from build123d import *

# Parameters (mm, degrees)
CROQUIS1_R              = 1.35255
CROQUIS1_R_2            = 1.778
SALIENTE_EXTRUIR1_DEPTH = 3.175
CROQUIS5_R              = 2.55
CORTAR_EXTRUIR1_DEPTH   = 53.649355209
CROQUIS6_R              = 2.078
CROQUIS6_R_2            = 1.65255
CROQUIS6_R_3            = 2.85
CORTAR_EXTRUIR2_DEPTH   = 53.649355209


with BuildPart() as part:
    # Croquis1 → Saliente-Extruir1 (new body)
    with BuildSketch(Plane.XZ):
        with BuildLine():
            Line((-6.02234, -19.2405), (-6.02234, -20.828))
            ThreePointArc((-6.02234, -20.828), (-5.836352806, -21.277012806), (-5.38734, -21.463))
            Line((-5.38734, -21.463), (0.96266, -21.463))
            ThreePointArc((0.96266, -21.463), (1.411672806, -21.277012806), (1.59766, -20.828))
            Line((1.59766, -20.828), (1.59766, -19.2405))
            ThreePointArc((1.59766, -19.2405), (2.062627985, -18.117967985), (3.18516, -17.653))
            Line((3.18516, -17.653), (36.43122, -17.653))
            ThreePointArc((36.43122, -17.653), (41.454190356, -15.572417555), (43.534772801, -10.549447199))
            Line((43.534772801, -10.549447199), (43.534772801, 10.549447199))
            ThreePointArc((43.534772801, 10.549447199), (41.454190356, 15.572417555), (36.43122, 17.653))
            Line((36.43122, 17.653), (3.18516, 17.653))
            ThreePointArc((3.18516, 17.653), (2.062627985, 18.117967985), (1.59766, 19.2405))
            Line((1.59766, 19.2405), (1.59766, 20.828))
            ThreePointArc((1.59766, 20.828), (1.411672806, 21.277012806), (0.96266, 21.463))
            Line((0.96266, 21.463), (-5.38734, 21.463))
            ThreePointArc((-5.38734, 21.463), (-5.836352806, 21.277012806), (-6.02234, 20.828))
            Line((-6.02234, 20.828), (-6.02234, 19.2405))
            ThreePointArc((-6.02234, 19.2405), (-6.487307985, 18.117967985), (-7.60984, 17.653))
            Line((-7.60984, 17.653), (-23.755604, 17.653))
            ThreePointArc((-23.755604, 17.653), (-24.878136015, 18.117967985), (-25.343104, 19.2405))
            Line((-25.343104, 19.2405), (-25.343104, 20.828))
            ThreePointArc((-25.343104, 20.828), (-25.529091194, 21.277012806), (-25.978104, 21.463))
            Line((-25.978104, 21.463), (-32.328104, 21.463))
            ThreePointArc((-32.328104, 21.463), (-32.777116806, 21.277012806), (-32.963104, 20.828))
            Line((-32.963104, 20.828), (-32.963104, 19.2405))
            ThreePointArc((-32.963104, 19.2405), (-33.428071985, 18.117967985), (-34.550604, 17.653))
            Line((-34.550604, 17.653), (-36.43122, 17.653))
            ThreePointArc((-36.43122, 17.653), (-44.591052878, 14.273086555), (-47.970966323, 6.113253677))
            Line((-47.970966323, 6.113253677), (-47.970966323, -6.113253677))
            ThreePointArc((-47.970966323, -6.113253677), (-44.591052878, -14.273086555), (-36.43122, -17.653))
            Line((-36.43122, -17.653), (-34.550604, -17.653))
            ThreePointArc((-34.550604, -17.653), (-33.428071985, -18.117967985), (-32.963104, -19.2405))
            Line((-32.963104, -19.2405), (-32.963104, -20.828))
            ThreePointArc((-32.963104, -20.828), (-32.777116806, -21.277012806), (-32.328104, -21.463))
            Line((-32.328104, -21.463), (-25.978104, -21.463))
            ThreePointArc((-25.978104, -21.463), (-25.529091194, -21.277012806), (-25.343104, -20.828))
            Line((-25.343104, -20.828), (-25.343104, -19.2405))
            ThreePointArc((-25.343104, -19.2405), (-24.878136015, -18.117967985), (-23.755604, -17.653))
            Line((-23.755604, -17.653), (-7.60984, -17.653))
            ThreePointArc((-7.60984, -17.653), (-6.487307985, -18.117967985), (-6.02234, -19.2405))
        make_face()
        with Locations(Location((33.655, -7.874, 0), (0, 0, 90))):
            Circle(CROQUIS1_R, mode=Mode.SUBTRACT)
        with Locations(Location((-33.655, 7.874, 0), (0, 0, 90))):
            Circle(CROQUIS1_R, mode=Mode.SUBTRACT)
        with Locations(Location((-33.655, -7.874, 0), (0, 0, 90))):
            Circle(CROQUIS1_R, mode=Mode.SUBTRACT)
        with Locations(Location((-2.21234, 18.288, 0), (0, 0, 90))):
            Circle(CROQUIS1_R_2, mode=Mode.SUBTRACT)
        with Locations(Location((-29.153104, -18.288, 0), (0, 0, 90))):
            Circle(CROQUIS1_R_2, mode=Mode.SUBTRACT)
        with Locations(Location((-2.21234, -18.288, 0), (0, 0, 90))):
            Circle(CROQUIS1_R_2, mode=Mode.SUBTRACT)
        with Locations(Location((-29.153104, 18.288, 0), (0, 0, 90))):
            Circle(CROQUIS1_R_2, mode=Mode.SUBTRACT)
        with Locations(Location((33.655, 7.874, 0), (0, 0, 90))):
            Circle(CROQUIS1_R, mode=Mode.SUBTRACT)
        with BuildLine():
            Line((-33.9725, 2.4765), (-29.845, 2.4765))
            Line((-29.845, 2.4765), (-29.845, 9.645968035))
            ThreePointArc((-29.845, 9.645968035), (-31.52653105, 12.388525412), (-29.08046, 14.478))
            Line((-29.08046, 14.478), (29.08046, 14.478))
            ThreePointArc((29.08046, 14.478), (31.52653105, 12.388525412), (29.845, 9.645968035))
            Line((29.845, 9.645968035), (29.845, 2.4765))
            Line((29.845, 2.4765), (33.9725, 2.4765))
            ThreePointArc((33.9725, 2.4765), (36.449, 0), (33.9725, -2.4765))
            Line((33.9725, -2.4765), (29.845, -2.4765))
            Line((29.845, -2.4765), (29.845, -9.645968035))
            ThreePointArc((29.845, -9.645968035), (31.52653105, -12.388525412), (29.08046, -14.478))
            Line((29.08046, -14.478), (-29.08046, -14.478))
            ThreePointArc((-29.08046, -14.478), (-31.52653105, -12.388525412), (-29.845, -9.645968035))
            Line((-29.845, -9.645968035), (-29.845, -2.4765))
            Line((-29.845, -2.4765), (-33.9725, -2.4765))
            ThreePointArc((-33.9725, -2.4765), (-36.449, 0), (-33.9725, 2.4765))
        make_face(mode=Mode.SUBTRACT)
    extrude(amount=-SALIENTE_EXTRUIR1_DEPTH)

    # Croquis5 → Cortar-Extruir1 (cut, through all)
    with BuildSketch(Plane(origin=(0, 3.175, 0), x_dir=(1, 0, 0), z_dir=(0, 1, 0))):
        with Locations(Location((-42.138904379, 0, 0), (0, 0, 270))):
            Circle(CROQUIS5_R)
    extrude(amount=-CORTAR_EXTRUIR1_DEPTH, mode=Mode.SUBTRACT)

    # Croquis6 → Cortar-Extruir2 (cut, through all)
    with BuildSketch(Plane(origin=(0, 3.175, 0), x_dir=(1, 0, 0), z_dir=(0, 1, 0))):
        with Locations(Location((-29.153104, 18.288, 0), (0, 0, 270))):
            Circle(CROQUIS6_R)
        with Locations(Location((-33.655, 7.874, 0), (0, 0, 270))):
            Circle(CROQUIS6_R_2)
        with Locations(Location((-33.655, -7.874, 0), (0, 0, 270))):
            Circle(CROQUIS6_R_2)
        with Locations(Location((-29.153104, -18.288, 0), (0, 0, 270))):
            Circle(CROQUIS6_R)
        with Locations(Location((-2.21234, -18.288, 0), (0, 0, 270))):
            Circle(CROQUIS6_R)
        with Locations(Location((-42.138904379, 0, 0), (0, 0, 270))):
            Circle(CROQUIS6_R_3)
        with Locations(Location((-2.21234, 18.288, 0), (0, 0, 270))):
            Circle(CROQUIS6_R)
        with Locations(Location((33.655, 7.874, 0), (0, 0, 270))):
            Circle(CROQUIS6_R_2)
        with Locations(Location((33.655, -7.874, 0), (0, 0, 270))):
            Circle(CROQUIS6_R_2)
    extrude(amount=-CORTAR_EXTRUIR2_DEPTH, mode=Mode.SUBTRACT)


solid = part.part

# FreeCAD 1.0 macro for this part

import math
import FreeCAD as App
import Part
import Sketcher
from FreeCAD import Vector
Q = App.Units.Quantity

doc = App.newDocument("Part")
body = doc.addObject("PartDesign::Body", "Body")

# Sketch on XZ plane
sketch1 = body.newObject("Sketcher::SketchObject", "Sketch")
sketch1.AttachmentSupport = (doc.getObject("XZ_Plane"), [""])
sketch1.MapMode = "FlatFace"
sketch1.addGeometry([
    Part.LineSegment(Vector(-6, -19.2, 0), Vector(-6, -20.8, 0)),  # 0
    Part.ArcOfCircle(Part.Circle(Vector(-5.4, -20.8, 0), Vector(0, 0, 1), 0.6), math.radians(180), math.radians(270)),  # 1
    Part.LineSegment(Vector(-5.4, -21.5, 0), Vector(1, -21.5, 0)),  # 2
    Part.ArcOfCircle(Part.Circle(Vector(1, -20.8, 0), Vector(0, 0, 1), 0.6), math.radians(-90), math.radians(0)),  # 3
    Part.LineSegment(Vector(1.6, -20.8, 0), Vector(1.6, -19.2, 0)),  # 4
    Part.ArcOfCircle(Part.Circle(Vector(3.2, -19.2, 0), Vector(0, 0, 1), 1.6), math.radians(90), math.radians(180)),  # 5
    Part.LineSegment(Vector(3.2, -17.7, 0), Vector(36.4, -17.7, 0)),  # 6
    Part.ArcOfCircle(Part.Circle(Vector(36.4, -10.5, 0), Vector(0, 0, 1), 7.1), math.radians(-90), math.radians(0)),  # 7
    Part.LineSegment(Vector(43.5, -10.5, 0), Vector(43.5, 10.5, 0)),  # 8
    Part.ArcOfCircle(Part.Circle(Vector(36.4, 10.5, 0), Vector(0, 0, 1), 7.1), math.radians(0), math.radians(90)),  # 9
    Part.LineSegment(Vector(36.4, 17.7, 0), Vector(3.2, 17.7, 0)),  # 10
    Part.ArcOfCircle(Part.Circle(Vector(3.2, 19.2, 0), Vector(0, 0, 1), 1.6), math.radians(180), math.radians(270)),  # 11
    Part.LineSegment(Vector(1.6, 19.2, 0), Vector(1.6, 20.8, 0)),  # 12
    Part.ArcOfCircle(Part.Circle(Vector(1, 20.8, 0), Vector(0, 0, 1), 0.6), math.radians(0), math.radians(90)),  # 13
    Part.LineSegment(Vector(1, 21.5, 0), Vector(-5.4, 21.5, 0)),  # 14
    Part.ArcOfCircle(Part.Circle(Vector(-5.4, 20.8, 0), Vector(0, 0, 1), 0.6), math.radians(90), math.radians(180)),  # 15
    Part.LineSegment(Vector(-6, 20.8, 0), Vector(-6, 19.2, 0)),  # 16
    Part.ArcOfCircle(Part.Circle(Vector(-7.6, 19.2, 0), Vector(0, 0, 1), 1.6), math.radians(-90), math.radians(0)),  # 17
    Part.LineSegment(Vector(-7.6, 17.7, 0), Vector(-23.8, 17.7, 0)),  # 18
    Part.ArcOfCircle(Part.Circle(Vector(-23.8, 19.2, 0), Vector(0, 0, 1), 1.6), math.radians(180), math.radians(270)),  # 19
    Part.LineSegment(Vector(-25.3, 19.2, 0), Vector(-25.3, 20.8, 0)),  # 20
    Part.ArcOfCircle(Part.Circle(Vector(-26, 20.8, 0), Vector(0, 0, 1), 0.6), math.radians(0), math.radians(90)),  # 21
    Part.LineSegment(Vector(-26, 21.5, 0), Vector(-32.3, 21.5, 0)),  # 22
    Part.ArcOfCircle(Part.Circle(Vector(-32.3, 20.8, 0), Vector(0, 0, 1), 0.6), math.radians(90), math.radians(180)),  # 23
    Part.LineSegment(Vector(-33, 20.8, 0), Vector(-33, 19.2, 0)),  # 24
    Part.ArcOfCircle(Part.Circle(Vector(-34.6, 19.2, 0), Vector(0, 0, 1), 1.6), math.radians(-90), math.radians(0)),  # 25
    Part.LineSegment(Vector(-34.6, 17.7, 0), Vector(-36.4, 17.7, 0)),  # 26
    Part.ArcOfCircle(Part.Circle(Vector(-36.4, 6.1, 0), Vector(0, 0, 1), 11.5), math.radians(90), math.radians(180)),  # 27
    Part.LineSegment(Vector(-48, 6.1, 0), Vector(-48, -6.1, 0)),  # 28
    Part.ArcOfCircle(Part.Circle(Vector(-36.4, -6.1, 0), Vector(0, 0, 1), 11.5), math.radians(-180), math.radians(-90)),  # 29
    Part.LineSegment(Vector(-36.4, -17.7, 0), Vector(-34.6, -17.7, 0)),  # 30
    Part.ArcOfCircle(Part.Circle(Vector(-34.6, -19.2, 0), Vector(0, 0, 1), 1.6), math.radians(0), math.radians(90)),  # 31
    Part.LineSegment(Vector(-33, -19.2, 0), Vector(-33, -20.8, 0)),  # 32
    Part.ArcOfCircle(Part.Circle(Vector(-32.3, -20.8, 0), Vector(0, 0, 1), 0.6), math.radians(180), math.radians(270)),  # 33
    Part.LineSegment(Vector(-32.3, -21.5, 0), Vector(-26, -21.5, 0)),  # 34
    Part.ArcOfCircle(Part.Circle(Vector(-26, -20.8, 0), Vector(0, 0, 1), 0.6), math.radians(-90), math.radians(0)),  # 35
    Part.LineSegment(Vector(-25.3, -20.8, 0), Vector(-25.3, -19.2, 0)),  # 36
    Part.ArcOfCircle(Part.Circle(Vector(-23.8, -19.2, 0), Vector(0, 0, 1), 1.6), math.radians(90), math.radians(180)),  # 37
    Part.LineSegment(Vector(-23.8, -17.7, 0), Vector(-7.6, -17.7, 0)),  # 38
    Part.ArcOfCircle(Part.Circle(Vector(-7.6, -19.2, 0), Vector(0, 0, 1), 1.6), math.radians(0), math.radians(90)),  # 39
    Part.Circle(Vector(-29.2, -18.3, 0), Vector(0, 0, 1), 1.8),  # 40
    Part.Circle(Vector(-2.2, -18.3, 0), Vector(0, 0, 1), 1.8),  # 41
    Part.Circle(Vector(-33.7, -7.9, 0), Vector(0, 0, 1), 1.4),  # 42
    Part.Circle(Vector(33.7, -7.9, 0), Vector(0, 0, 1), 1.4),  # 43
    Part.Circle(Vector(-33.7, 7.9, 0), Vector(0, 0, 1), 1.4),  # 44
    Part.Circle(Vector(-29.2, 18.3, 0), Vector(0, 0, 1), 1.8),  # 45
    Part.Circle(Vector(-2.2, 18.3, 0), Vector(0, 0, 1), 1.8),  # 46
    Part.ArcOfCircle(Part.Circle(Vector(-34, 0, 0), Vector(0, 0, 1), 2.5), math.radians(90), math.radians(270)),  # 47
    Part.LineSegment(Vector(-34, 2.5, 0), Vector(-29.8, 2.5, 0)),  # 48
    Part.LineSegment(Vector(-29.8, 2.5, 0), Vector(-29.8, 9.6, 0)),  # 49
    Part.ArcOfCircle(Part.Circle(Vector(-29.1, 12, 0), Vector(0, 0, 1), 2.5), math.radians(90), math.radians(252)),  # 50
    Part.LineSegment(Vector(-29.1, 14.5, 0), Vector(29.1, 14.5, 0)),  # 51
    Part.ArcOfCircle(Part.Circle(Vector(29.1, 12, 0), Vector(0, 0, 1), 2.5), math.radians(-72), math.radians(90)),  # 52
    Part.LineSegment(Vector(29.8, 9.6, 0), Vector(29.8, 2.5, 0)),  # 53
    Part.LineSegment(Vector(29.8, 2.5, 0), Vector(34, 2.5, 0)),  # 54
    Part.ArcOfCircle(Part.Circle(Vector(34, 0, 0), Vector(0, 0, 1), 2.5), math.radians(-90), math.radians(90)),  # 55
    Part.LineSegment(Vector(34, -2.5, 0), Vector(29.8, -2.5, 0)),  # 56
    Part.LineSegment(Vector(29.8, -2.5, 0), Vector(29.8, -9.6, 0)),  # 57
    Part.ArcOfCircle(Part.Circle(Vector(29.1, -12, 0), Vector(0, 0, 1), 2.5), math.radians(-90), math.radians(72)),  # 58
    Part.LineSegment(Vector(29.1, -14.5, 0), Vector(-29.1, -14.5, 0)),  # 59
    Part.ArcOfCircle(Part.Circle(Vector(-29.1, -12, 0), Vector(0, 0, 1), 2.5), math.radians(108), math.radians(270)),  # 60
    Part.LineSegment(Vector(-29.8, -9.6, 0), Vector(-29.8, -2.5, 0)),  # 61
    Part.LineSegment(Vector(-29.8, -2.5, 0), Vector(-34, -2.5, 0)),  # 62
    Part.Circle(Vector(33.7, 7.9, 0), Vector(0, 0, 1), 1.4),  # 63
], False)
sketch1.addConstraint([
    Sketcher.Constraint("Tangent", 0, 2, 1, 1),
    Sketcher.Constraint("Tangent", 1, 2, 2, 1),
    Sketcher.Constraint("Tangent", 2, 2, 3, 1),
    Sketcher.Constraint("Tangent", 3, 2, 4, 1),
    Sketcher.Constraint("Tangent", 4, 2, 5, 2),
    Sketcher.Constraint("Tangent", 5, 1, 6, 1),
    Sketcher.Constraint("Tangent", 6, 2, 7, 1),
    Sketcher.Constraint("Tangent", 7, 2, 8, 1),
    Sketcher.Constraint("Tangent", 8, 2, 9, 1),
    Sketcher.Constraint("Tangent", 9, 2, 10, 1),
    Sketcher.Constraint("Tangent", 10, 2, 11, 2),
    Sketcher.Constraint("Tangent", 11, 1, 12, 1),
    Sketcher.Constraint("Tangent", 12, 2, 13, 1),
    Sketcher.Constraint("Tangent", 13, 2, 14, 1),
    Sketcher.Constraint("Tangent", 14, 2, 15, 1),
    Sketcher.Constraint("Tangent", 15, 2, 16, 1),
    Sketcher.Constraint("Tangent", 16, 2, 17, 2),
    Sketcher.Constraint("Tangent", 17, 1, 18, 1),
    Sketcher.Constraint("Tangent", 18, 2, 19, 2),
    Sketcher.Constraint("Tangent", 19, 1, 20, 1),
    Sketcher.Constraint("Tangent", 20, 2, 21, 1),
    Sketcher.Constraint("Tangent", 21, 2, 22, 1),
    Sketcher.Constraint("Tangent", 22, 2, 23, 1),
    Sketcher.Constraint("Tangent", 23, 2, 24, 1),
    Sketcher.Constraint("Tangent", 24, 2, 25, 2),
    Sketcher.Constraint("Tangent", 25, 1, 26, 1),
    Sketcher.Constraint("Tangent", 26, 2, 27, 1),
    Sketcher.Constraint("Tangent", 27, 2, 28, 1),
    Sketcher.Constraint("Tangent", 28, 2, 29, 1),
    Sketcher.Constraint("Tangent", 29, 2, 30, 1),
    Sketcher.Constraint("Tangent", 30, 2, 31, 2),
    Sketcher.Constraint("Tangent", 31, 1, 32, 1),
    Sketcher.Constraint("Tangent", 32, 2, 33, 1),
    Sketcher.Constraint("Tangent", 33, 2, 34, 1),
    Sketcher.Constraint("Tangent", 34, 2, 35, 1),
    Sketcher.Constraint("Tangent", 35, 2, 36, 1),
    Sketcher.Constraint("Tangent", 36, 2, 37, 2),
    Sketcher.Constraint("Tangent", 37, 1, 38, 1),
    Sketcher.Constraint("Tangent", 38, 2, 39, 2),
    Sketcher.Constraint("Tangent", 39, 1, 0, 1),
    Sketcher.Constraint("Tangent", 47, 1, 48, 1),
    Sketcher.Constraint("Coincident", 48, 2, 49, 1),
    Sketcher.Constraint("Coincident", 49, 2, 50, 2),
    Sketcher.Constraint("Tangent", 50, 1, 51, 1),
    Sketcher.Constraint("Tangent", 51, 2, 52, 2),
    Sketcher.Constraint("Coincident", 52, 1, 53, 1),
    Sketcher.Constraint("Coincident", 53, 2, 54, 1),
    Sketcher.Constraint("Tangent", 54, 2, 55, 2),
    Sketcher.Constraint("Tangent", 55, 1, 56, 1),
    Sketcher.Constraint("Coincident", 56, 2, 57, 1),
    Sketcher.Constraint("Coincident", 57, 2, 58, 2),
    Sketcher.Constraint("Tangent", 58, 1, 59, 1),
    Sketcher.Constraint("Tangent", 59, 2, 60, 2),
    Sketcher.Constraint("Coincident", 60, 1, 61, 1),
    Sketcher.Constraint("Coincident", 61, 2, 62, 1),
    Sketcher.Constraint("Tangent", 62, 2, 47, 2),
    Sketcher.Constraint("Vertical", 0),
    Sketcher.Constraint("Horizontal", 2),
    Sketcher.Constraint("Vertical", 4),
    Sketcher.Constraint("Horizontal", 6),
    Sketcher.Constraint("Vertical", 8),
    Sketcher.Constraint("Horizontal", 10),
    Sketcher.Constraint("Vertical", 12),
    Sketcher.Constraint("Horizontal", 14),
    Sketcher.Constraint("Vertical", 16),
    Sketcher.Constraint("Horizontal", 18),
    Sketcher.Constraint("Vertical", 20),
    Sketcher.Constraint("Horizontal", 22),
    Sketcher.Constraint("Vertical", 24),
    Sketcher.Constraint("Horizontal", 26),
    Sketcher.Constraint("Vertical", 28),
    Sketcher.Constraint("Horizontal", 30),
    Sketcher.Constraint("Vertical", 32),
    Sketcher.Constraint("Horizontal", 34),
    Sketcher.Constraint("Vertical", 36),
    Sketcher.Constraint("Horizontal", 38),
    Sketcher.Constraint("Horizontal", 48),
    Sketcher.Constraint("Vertical", 49),
    Sketcher.Constraint("Horizontal", 51),
    Sketcher.Constraint("Vertical", 53),
    Sketcher.Constraint("Horizontal", 54),
    Sketcher.Constraint("Horizontal", 56),
    Sketcher.Constraint("Vertical", 57),
    Sketcher.Constraint("Horizontal", 59),
    Sketcher.Constraint("Vertical", 61),
    Sketcher.Constraint("Horizontal", 62),
    Sketcher.Constraint("Equal", 1, 3),
    Sketcher.Constraint("Equal", 7, 9),
    Sketcher.Constraint("Equal", 5, 11),
    Sketcher.Constraint("Equal", 3, 13),
    Sketcher.Constraint("Equal", 13, 15),
    Sketcher.Constraint("Equal", 11, 17),
    Sketcher.Constraint("Equal", 17, 19),
    Sketcher.Constraint("Equal", 15, 21),
    Sketcher.Constraint("Equal", 21, 23),
    Sketcher.Constraint("Equal", 19, 25),
    Sketcher.Constraint("Equal", 27, 29),
    Sketcher.Constraint("Equal", 25, 31),
    Sketcher.Constraint("Equal", 23, 33),
    Sketcher.Constraint("Equal", 33, 35),
    Sketcher.Constraint("Equal", 31, 37),
    Sketcher.Constraint("Equal", 37, 39),
    Sketcher.Constraint("Equal", 40, 41),
    Sketcher.Constraint("Equal", 42, 43),
    Sketcher.Constraint("Equal", 43, 44),
    Sketcher.Constraint("Equal", 41, 45),
    Sketcher.Constraint("Equal", 45, 46),
    Sketcher.Constraint("Equal", 47, 50),
    Sketcher.Constraint("Equal", 50, 52),
    Sketcher.Constraint("Equal", 52, 55),
    Sketcher.Constraint("Equal", 55, 58),
    Sketcher.Constraint("Equal", 58, 60),
    Sketcher.Constraint("Equal", 44, 63),
    Sketcher.Constraint("Symmetric", 43, 3, 44, 3, -1, 1),
    Sketcher.Constraint("Symmetric", 47, 3, 55, 3, -1, 1),
    Sketcher.Constraint("Symmetric", 50, 3, 58, 3, -1, 1),
    Sketcher.Constraint("Symmetric", 42, 3, 63, 3, -1, 1),
    Sketcher.Constraint("Symmetric", 6, 2, 26, 2, -1, 1),
    Sketcher.Constraint("Symmetric", 52, 1, 60, 1, -1, 1),
    Sketcher.Constraint("Symmetric", 42, 3, 43, 3, -2),
    Sketcher.Constraint("Symmetric", 49, 2, 52, 1, -2),
    Sketcher.Constraint("Symmetric", 56, 2, 61, 2, -2),
    Sketcher.Constraint("Symmetric", 5, 3, 11, 3, -1),
    Sketcher.Constraint("Symmetric", 1, 3, 15, 3, -1),
    Sketcher.Constraint("Symmetric", 25, 3, 31, 3, -1),
    Sketcher.Constraint("Symmetric", 21, 3, 35, 3, -1),
    Sketcher.Constraint("Symmetric", 40, 3, 45, 3, -1),
    Sketcher.Constraint("Symmetric", 41, 3, 46, 3, -1),
    Sketcher.Constraint("Horizontal", 11, 3, 17, 3),
    Sketcher.Constraint("Horizontal", 15, 3, 21, 3),
    Sketcher.Constraint("Horizontal", 31, 3, 37, 3),
    Sketcher.Constraint("Horizontal", 40, 3, 41, 3),
    Sketcher.Constraint("Equal", 14, 22),
    Sketcher.Constraint("Diameter", 40, Q("0.14 in")),
    Sketcher.Constraint("Radius", 1, Q("0.025 in")),
    Sketcher.Constraint("Radius", 5, Q("0.0625 in")),
    Sketcher.Constraint("Diameter", 42, Q("0.1065 in")),
    Sketcher.Constraint("DistanceX", 2, 1, 2, 2, Q("0.25 in")),
    Sketcher.Constraint("Radius", 47, Q("0.0975 in")),
    Sketcher.Constraint("DistanceY", 0, 2, 0, 1, Q("0.0625 in")),
    Sketcher.Constraint("DistanceY", 1, 3, -1, 1, Q("0.82 in")),
    Sketcher.Constraint("DistanceY", 40, 3, -1, 1, Q("0.72 in")),
    Sketcher.Constraint("DistanceY", 42, 3, -1, 1, Q("0.31 in")),
    Sketcher.Constraint("DistanceY", -1, 1, 50, 1, Q("0.57 in")),
    Sketcher.Constraint("DistanceX", 6, 1, 6, 2, Q("1.3089 in")),
    Sketcher.Constraint("DistanceX", 48, 1, 48, 2, Q("0.1625 in")),
    Sketcher.Constraint("DistanceX", 51, 1, 51, 2, Q("2.2898 in")),
    Sketcher.Constraint("DistanceX", 42, 3, -1, 1, Q("1.325 in")),
    Sketcher.Constraint("DistanceX", 48, 2, -1, 1, Q("1.175 in")),
    Sketcher.Constraint("DistanceX", 1, 3, -1, 1, Q("0.2121 in")),
    Sketcher.Constraint("DistanceX", 41, 3, -1, 1, Q("0.0871 in")),
    Sketcher.Constraint("Radius", 7, Q("7.103553 mm")),
    Sketcher.Constraint("Radius", 27, Q("11.539746 mm")),
    Sketcher.Constraint("DistanceX", 18, 2, 18, 1, Q("16.145764 mm")),
    Sketcher.Constraint("DistanceX", 40, 3, -1, 1, Q("29.153104 mm")),
])
pad1 = body.newObject("PartDesign::Pad", "Pad")
pad1.Profile = sketch1
pad1.Length = Q("0.125 in")
pad1.Reversed = True

# Sketch on XZ plane
sketch2 = body.newObject("Sketcher::SketchObject", "Sketch001")
sketch2.AttachmentSupport = (doc.getObject("XZ_Plane"), [""])
sketch2.MapMode = "FlatFace"
sketch2.AttachmentOffset = App.Placement(Vector(0, 0, -0.125 * 25.4), App.Rotation())
sketch2.addGeometry(Part.Circle(Vector(-42.1, 0, 0), Vector(0, 0, 1), 2.5), False)
sketch2.addConstraint([
    Sketcher.Constraint("PointOnObject", 0, 3, -1),
    Sketcher.Constraint("Diameter", 0, Q("5.1 mm")),
    Sketcher.Constraint("DistanceX", 0, 3, -1, 1, Q("42.138904 mm")),
])
pocket1 = body.newObject("PartDesign::Pocket", "Pocket")
pocket1.Profile = sketch2
pocket1.Type = "ThroughAll"
pocket1.Reversed = True

# Sketch on XZ plane
sketch3 = body.newObject("Sketcher::SketchObject", "Sketch002")
sketch3.AttachmentSupport = (doc.getObject("XZ_Plane"), [""])
sketch3.MapMode = "FlatFace"
sketch3.AttachmentOffset = App.Placement(Vector(0, 0, -0.125 * 25.4), App.Rotation())
sketch3.addGeometry([
    Part.Circle(Vector(-29.2, -18.3, 0), Vector(0, 0, 1), 2.1),  # 0
    Part.Circle(Vector(-33.7, -7.9, 0), Vector(0, 0, 1), 1.7),  # 1
    Part.Circle(Vector(-33.7, 7.9, 0), Vector(0, 0, 1), 1.7),  # 2
    Part.Circle(Vector(-29.2, 18.3, 0), Vector(0, 0, 1), 2.1),  # 3
    Part.Circle(Vector(-2.2, 18.3, 0), Vector(0, 0, 1), 2.1),  # 4
    Part.Circle(Vector(-42.1, 0, 0), Vector(0, 0, 1), 2.9),  # 5
    Part.Circle(Vector(-2.2, -18.3, 0), Vector(0, 0, 1), 2.1),  # 6
    Part.Circle(Vector(33.7, -7.9, 0), Vector(0, 0, 1), 1.7),  # 7
    Part.Circle(Vector(33.7, 7.9, 0), Vector(0, 0, 1), 1.7),  # 8
], False)
sketch3.addConstraint([
    Sketcher.Constraint("Equal", 1, 2),
    Sketcher.Constraint("Equal", 0, 3),
    Sketcher.Constraint("Equal", 3, 4),
    Sketcher.Constraint("Equal", 4, 6),
    Sketcher.Constraint("Equal", 2, 7),
    Sketcher.Constraint("Equal", 7, 8),
    Sketcher.Constraint("Symmetric", 2, 3, 7, 3, -1, 1),
    Sketcher.Constraint("Symmetric", 1, 3, 8, 3, -1, 1),
    Sketcher.Constraint("Symmetric", 1, 3, 7, 3, -2),
    Sketcher.Constraint("Symmetric", 0, 3, 3, 3, -1),
    Sketcher.Constraint("Symmetric", 4, 3, 6, 3, -1),
    Sketcher.Constraint("PointOnObject", 5, 3, -1),
    Sketcher.Constraint("Horizontal", 3, 3, 4, 3),
    Sketcher.Constraint("Diameter", 0, Q("4.156 mm")),
    Sketcher.Constraint("Diameter", 1, Q("3.3051 mm")),
    Sketcher.Constraint("Diameter", 5, Q("5.7 mm")),
    Sketcher.Constraint("DistanceY", 0, 3, -1, 1, Q("0.72 in")),
    Sketcher.Constraint("DistanceY", 1, 3, -1, 1, Q("0.31 in")),
    Sketcher.Constraint("DistanceX", 1, 3, 7, 3, Q("2.65 in")),
    Sketcher.Constraint("DistanceX", 4, 3, -1, 1, Q("0.0871 in")),
    Sketcher.Constraint("DistanceX", 5, 3, 0, 3, Q("12.9858 mm")),
    Sketcher.Constraint("DistanceX", 0, 3, -1, 1, Q("29.153104 mm")),
])
pocket2 = body.newObject("PartDesign::Pocket", "Pocket001")
pocket2.Profile = sketch3
pocket2.Type = "ThroughAll"
pocket2.Reversed = True

doc.recompute()
